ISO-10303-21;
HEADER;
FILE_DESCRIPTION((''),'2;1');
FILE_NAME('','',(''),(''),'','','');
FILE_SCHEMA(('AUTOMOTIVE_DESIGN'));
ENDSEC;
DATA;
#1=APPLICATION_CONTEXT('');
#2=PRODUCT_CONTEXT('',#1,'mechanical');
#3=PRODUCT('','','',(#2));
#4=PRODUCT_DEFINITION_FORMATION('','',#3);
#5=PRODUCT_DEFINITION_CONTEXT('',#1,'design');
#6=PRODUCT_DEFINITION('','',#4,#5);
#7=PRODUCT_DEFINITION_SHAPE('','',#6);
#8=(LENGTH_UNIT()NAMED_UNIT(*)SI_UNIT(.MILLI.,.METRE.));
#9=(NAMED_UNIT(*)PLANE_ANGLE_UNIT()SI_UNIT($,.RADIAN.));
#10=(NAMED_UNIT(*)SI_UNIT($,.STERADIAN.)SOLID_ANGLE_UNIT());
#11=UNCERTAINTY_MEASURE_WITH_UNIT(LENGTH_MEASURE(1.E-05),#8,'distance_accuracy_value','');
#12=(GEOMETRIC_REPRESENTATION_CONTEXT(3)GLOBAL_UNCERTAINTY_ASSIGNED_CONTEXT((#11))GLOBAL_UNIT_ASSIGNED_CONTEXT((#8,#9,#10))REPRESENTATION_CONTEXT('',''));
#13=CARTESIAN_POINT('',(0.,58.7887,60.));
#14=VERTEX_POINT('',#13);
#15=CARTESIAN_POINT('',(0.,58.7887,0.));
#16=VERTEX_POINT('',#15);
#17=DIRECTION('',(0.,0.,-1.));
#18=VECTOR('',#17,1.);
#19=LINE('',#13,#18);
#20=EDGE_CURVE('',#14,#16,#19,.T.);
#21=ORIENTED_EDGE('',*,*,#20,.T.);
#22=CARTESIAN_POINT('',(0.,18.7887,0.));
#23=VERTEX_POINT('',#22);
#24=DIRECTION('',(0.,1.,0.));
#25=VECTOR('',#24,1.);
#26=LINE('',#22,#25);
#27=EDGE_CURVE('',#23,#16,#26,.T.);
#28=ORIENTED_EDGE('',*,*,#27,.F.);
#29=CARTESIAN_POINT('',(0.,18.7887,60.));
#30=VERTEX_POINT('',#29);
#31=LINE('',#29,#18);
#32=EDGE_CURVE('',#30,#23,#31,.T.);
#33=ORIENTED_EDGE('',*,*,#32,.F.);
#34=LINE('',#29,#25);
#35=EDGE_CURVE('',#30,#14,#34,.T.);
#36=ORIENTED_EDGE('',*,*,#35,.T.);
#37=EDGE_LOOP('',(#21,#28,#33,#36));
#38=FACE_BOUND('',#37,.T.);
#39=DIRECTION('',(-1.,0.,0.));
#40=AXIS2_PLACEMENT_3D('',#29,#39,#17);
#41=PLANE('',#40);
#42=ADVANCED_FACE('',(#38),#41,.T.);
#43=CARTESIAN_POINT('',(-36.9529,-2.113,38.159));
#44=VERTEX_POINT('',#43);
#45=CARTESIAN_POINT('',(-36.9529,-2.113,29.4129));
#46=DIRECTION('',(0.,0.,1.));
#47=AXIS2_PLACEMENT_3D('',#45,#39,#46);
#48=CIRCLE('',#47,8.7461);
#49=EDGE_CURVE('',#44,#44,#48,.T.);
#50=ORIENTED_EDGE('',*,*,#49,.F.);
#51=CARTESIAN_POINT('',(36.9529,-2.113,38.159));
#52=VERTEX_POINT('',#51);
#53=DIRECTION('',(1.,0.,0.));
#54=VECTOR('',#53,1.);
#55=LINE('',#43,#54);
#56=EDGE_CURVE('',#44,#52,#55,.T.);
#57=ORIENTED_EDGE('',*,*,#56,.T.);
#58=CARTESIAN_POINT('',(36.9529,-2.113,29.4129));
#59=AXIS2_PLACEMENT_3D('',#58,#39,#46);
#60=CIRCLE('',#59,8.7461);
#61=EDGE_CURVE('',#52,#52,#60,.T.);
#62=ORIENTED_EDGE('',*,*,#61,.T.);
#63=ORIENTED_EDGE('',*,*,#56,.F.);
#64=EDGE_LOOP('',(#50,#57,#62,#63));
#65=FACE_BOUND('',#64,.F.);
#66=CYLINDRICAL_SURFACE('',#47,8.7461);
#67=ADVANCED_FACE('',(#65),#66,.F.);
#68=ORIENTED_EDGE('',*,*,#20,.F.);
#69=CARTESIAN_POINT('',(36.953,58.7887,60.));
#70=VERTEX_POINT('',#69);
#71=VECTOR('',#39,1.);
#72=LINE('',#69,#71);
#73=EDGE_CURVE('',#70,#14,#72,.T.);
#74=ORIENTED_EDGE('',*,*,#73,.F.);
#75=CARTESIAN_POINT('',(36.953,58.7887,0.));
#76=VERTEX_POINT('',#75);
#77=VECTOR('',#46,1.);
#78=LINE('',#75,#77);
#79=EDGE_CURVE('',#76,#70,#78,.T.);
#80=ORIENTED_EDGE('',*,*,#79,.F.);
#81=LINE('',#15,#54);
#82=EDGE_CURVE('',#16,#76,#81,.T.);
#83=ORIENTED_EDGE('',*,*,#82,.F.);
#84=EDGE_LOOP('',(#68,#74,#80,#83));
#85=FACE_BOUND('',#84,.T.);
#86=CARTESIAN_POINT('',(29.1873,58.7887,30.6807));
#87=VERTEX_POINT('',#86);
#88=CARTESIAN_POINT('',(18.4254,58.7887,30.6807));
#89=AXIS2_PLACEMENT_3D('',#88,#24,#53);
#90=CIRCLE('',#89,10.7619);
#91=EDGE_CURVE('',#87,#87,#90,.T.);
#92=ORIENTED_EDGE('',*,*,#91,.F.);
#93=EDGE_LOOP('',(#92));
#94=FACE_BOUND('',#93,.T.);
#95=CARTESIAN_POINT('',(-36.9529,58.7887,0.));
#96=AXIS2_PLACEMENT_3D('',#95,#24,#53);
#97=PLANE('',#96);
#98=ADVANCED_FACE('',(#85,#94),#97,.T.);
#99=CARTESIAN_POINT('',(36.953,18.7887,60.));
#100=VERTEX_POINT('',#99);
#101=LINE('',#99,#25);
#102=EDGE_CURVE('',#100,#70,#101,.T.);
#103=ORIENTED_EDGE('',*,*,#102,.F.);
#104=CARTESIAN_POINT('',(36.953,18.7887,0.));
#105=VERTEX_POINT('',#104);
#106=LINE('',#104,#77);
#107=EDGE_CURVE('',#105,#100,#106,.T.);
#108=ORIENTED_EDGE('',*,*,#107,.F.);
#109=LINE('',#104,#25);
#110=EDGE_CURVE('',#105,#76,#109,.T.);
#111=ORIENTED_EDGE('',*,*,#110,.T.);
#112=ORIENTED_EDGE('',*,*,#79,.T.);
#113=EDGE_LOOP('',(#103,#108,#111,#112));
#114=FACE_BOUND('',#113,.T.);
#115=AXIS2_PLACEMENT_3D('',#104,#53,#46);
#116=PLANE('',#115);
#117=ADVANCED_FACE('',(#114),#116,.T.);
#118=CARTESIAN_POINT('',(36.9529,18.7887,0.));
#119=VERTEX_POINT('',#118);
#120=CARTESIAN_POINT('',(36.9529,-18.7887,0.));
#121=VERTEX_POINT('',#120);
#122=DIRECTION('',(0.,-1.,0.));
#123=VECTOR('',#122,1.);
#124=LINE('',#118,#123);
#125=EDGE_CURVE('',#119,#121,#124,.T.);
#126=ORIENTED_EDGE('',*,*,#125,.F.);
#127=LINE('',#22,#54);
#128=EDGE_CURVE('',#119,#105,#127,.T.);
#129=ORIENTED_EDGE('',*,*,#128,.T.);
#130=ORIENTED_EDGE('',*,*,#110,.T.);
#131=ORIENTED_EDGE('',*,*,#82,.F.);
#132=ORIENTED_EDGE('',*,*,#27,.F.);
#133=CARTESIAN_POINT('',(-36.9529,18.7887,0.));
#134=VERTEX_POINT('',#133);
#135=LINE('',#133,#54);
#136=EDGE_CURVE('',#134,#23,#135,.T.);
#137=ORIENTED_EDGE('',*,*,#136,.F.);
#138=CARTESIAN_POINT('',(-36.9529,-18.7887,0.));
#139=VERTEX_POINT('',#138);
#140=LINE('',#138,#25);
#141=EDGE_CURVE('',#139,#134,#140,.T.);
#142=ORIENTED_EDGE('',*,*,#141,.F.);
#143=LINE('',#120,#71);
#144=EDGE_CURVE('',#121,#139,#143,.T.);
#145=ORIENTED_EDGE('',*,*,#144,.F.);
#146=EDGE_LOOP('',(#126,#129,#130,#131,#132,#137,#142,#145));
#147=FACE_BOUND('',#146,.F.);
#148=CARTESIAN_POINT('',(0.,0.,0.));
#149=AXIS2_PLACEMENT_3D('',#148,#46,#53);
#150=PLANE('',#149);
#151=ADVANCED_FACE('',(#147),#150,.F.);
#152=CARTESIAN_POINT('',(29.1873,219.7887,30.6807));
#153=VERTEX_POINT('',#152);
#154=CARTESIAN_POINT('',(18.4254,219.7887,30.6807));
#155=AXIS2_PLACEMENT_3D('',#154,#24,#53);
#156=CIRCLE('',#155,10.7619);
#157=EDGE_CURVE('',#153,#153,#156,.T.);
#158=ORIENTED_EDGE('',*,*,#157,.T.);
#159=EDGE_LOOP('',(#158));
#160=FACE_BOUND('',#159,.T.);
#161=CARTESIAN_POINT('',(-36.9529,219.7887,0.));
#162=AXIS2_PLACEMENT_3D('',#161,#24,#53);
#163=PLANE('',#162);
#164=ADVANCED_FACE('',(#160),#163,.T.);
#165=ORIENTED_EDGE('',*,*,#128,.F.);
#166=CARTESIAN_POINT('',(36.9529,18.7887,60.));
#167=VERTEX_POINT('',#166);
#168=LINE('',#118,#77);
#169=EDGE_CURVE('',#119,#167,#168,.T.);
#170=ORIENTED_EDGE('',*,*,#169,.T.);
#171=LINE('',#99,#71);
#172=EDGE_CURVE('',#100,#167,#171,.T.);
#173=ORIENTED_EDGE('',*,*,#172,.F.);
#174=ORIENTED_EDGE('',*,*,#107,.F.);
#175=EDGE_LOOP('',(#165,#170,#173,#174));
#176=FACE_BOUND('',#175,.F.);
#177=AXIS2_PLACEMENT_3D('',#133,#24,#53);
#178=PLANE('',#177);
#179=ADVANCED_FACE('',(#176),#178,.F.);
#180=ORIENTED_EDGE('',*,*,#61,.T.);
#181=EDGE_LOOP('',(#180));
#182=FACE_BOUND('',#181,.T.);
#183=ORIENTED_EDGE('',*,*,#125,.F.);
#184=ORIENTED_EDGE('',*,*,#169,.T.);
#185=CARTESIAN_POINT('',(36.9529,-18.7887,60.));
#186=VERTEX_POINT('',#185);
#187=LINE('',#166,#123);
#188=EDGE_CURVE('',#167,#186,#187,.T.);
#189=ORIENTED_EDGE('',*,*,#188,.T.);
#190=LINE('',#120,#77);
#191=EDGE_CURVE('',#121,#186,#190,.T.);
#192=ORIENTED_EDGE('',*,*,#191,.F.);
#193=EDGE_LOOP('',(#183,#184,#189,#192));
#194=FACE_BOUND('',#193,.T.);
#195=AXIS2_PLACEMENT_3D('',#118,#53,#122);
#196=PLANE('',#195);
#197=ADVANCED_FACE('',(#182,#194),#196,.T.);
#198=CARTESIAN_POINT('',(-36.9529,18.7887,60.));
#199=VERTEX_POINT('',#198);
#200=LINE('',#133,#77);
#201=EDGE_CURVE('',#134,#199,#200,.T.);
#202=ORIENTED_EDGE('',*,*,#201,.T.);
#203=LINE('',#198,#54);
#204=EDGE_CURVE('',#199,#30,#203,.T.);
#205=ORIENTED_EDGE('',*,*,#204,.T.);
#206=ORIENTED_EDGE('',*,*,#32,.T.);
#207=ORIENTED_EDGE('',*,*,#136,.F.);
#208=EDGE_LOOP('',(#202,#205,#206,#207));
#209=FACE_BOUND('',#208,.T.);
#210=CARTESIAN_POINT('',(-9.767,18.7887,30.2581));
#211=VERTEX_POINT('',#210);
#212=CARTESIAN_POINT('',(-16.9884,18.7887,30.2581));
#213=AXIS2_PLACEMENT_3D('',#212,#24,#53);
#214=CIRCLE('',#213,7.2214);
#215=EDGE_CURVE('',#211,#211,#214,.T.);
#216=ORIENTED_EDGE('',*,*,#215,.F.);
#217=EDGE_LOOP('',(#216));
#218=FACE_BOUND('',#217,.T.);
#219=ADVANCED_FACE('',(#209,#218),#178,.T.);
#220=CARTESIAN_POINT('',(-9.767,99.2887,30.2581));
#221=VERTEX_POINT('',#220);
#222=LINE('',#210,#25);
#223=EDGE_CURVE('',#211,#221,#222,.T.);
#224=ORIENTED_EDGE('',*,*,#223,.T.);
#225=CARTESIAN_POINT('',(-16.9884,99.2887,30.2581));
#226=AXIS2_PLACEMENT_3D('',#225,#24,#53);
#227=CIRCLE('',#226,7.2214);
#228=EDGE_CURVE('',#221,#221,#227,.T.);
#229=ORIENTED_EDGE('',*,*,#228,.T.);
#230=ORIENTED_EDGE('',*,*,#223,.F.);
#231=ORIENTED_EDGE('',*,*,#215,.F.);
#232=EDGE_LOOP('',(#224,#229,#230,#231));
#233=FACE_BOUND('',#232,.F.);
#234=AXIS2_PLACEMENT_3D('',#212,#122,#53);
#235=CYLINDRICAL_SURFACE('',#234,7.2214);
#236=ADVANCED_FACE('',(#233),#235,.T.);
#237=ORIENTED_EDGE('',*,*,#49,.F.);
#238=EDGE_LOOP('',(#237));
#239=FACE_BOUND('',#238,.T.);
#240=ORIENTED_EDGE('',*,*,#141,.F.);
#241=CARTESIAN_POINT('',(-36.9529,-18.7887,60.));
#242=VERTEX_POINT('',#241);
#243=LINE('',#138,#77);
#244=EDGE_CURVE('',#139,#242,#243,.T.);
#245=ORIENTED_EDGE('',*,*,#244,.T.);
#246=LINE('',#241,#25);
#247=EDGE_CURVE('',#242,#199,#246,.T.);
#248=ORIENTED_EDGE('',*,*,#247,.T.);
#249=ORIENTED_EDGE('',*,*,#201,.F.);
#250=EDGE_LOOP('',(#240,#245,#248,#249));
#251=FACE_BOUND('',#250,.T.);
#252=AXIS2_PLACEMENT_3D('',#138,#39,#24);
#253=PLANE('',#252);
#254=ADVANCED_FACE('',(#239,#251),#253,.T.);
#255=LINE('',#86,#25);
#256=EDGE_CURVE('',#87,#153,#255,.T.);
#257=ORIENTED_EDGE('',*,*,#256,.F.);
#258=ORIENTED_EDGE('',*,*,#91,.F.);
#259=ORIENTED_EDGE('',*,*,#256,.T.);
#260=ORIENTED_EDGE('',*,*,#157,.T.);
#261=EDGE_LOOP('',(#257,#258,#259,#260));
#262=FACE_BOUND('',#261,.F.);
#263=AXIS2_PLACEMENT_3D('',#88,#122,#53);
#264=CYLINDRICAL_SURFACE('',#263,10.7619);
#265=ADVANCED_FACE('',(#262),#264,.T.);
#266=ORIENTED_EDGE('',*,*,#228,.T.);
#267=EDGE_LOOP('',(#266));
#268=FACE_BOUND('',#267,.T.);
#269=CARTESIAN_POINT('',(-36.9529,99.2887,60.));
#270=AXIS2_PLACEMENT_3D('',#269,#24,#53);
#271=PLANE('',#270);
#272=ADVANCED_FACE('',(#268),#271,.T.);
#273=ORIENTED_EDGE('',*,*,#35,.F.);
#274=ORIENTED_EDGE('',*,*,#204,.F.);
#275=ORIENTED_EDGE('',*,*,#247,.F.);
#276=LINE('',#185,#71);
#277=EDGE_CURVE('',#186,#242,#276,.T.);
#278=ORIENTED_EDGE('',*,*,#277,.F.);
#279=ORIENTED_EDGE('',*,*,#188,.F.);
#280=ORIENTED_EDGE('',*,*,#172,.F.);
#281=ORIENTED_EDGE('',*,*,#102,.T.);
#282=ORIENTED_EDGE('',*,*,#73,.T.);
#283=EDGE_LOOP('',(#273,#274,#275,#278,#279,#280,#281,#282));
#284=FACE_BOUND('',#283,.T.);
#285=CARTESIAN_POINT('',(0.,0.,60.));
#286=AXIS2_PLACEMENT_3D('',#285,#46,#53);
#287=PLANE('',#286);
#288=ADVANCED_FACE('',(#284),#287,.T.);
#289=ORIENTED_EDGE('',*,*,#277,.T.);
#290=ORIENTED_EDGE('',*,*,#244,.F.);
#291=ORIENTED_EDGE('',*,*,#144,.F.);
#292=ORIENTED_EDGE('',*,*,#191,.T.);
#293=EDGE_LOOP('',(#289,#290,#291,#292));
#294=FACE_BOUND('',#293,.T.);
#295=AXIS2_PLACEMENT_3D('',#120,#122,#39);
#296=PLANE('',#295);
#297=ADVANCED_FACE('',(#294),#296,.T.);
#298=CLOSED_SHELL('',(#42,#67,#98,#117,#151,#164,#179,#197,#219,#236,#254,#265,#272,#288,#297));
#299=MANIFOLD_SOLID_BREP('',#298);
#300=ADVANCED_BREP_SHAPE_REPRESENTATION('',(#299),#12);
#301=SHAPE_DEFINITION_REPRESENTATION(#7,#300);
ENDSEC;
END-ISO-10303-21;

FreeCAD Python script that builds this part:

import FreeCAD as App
import Part
import Sketcher

doc = App.newDocument("Part")
body = doc.addObject("PartDesign::Body", "Body")

sketch1 = doc.addObject("Sketcher::SketchObject", "Sketch")
body.addObject(sketch1)
sketch1.AttachmentSupport = (doc.XY_Plane, [""])
sketch1.MapMode = "FlatFace"
sketch1.addGeometry([
    Part.LineSegment(App.Vector(-37, -19, 0), App.Vector(37, -19, 0)),
    Part.LineSegment(App.Vector(37, -19, 0), App.Vector(37, 19, 0)),
    Part.LineSegment(App.Vector(37, 19, 0), App.Vector(-37, 19, 0)),
    Part.LineSegment(App.Vector(-37, 19, 0), App.Vector(-37, -19, 0)),
], False)
sketch1.addConstraint([
    Sketcher.Constraint("Coincident", 0, 2, 1, 1),
    Sketcher.Constraint("Coincident", 1, 2, 2, 1),
    Sketcher.Constraint("Coincident", 2, 2, 3, 1),
    Sketcher.Constraint("Coincident", 3, 2, 0, 1),
    Sketcher.Constraint("Horizontal", 0),
    Sketcher.Constraint("Vertical", 1),
    Sketcher.Constraint("Horizontal", 2),
    Sketcher.Constraint("Vertical", 3),
    Sketcher.Constraint("Symmetric", 0, 2, 2, 2, -1, 1),
    Sketcher.Constraint("DistanceX", 0, 1, 0, 2, 73.9058),
    Sketcher.Constraint("DistanceY", 1, 1, 1, 2, 37.5774),
])
pad1 = doc.addObject("PartDesign::Pad", "Pad")
body.addObject(pad1)
pad1.Profile = sketch1
pad1.Length = 60

sketch2 = doc.addObject("Sketcher::SketchObject", "Sketch001")
body.addObject(sketch2)
sketch2.AttachmentSupport = (doc.XZ_Plane, [""])
sketch2.MapMode = "FlatFace"
sketch2.AttachmentOffset = App.Placement(App.Vector(0, 0, -18.7887), App.Rotation())
sketch2.addGeometry([
    Part.LineSegment(App.Vector(37, 60, 0), App.Vector(37, 0, 0)),
    Part.LineSegment(App.Vector(37, 0, 0), App.Vector(0, 0, 0)),
    Part.LineSegment(App.Vector(0, 0, 0), App.Vector(0, 60, 0)),
    Part.LineSegment(App.Vector(0, 60, 0), App.Vector(37, 60, 0)),
], False)
sketch2.addConstraint([
    Sketcher.Constraint("Coincident", 0, 2, 1, 1),
    Sketcher.Constraint("Coincident", 1, 2, 2, 1),
    Sketcher.Constraint("Coincident", 2, 2, 3, 1),
    Sketcher.Constraint("Coincident", 3, 2, 0, 1),
    Sketcher.Constraint("Vertical", 0),
    Sketcher.Constraint("Horizontal", 1),
    Sketcher.Constraint("Vertical", 2),
    Sketcher.Constraint("Horizontal", 3),
    Sketcher.Constraint("Coincident", 1, 2, -1, 1),
    Sketcher.Constraint("DistanceY", 0, 2, 0, 1, 60.0),
    Sketcher.Constraint("DistanceX", 1, 2, 1, 1, 36.953),
])
pad2 = doc.addObject("PartDesign::Pad", "Pad001")
body.addObject(pad2)
pad2.Profile = sketch2
pad2.Length = 40
pad2.Reversed = True

sketch3 = doc.addObject("Sketcher::SketchObject", "Sketch002")
body.addObject(sketch3)
sketch3.AttachmentSupport = (doc.XZ_Plane, [""])
sketch3.MapMode = "FlatFace"
sketch3.AttachmentOffset = App.Placement(App.Vector(0, 0, -18.7887), App.Rotation())
sketch3.addGeometry(Part.Circle(App.Vector(-17, 30, 0), App.Vector(0, 0, 1), 7), False)
sketch3.addConstraint([
    Sketcher.Constraint("Diameter", 0, 14.4428),
    Sketcher.Constraint("DistanceY", -1, 1, 0, 3, 30.258),
    Sketcher.Constraint("DistanceX", 0, 3, -1, 1, 16.9884),
])
pad3 = doc.addObject("PartDesign::Pad", "Pad002")
body.addObject(pad3)
pad3.Profile = sketch3
pad3.Length = 80.5
pad3.Reversed = True

sketch4 = doc.addObject("Sketcher::SketchObject", "Sketch003")
body.addObject(sketch4)
sketch4.AttachmentSupport = (doc.XZ_Plane, [""])
sketch4.MapMode = "FlatFace"
sketch4.AttachmentOffset = App.Placement(App.Vector(0, 0, -58.7887), App.Rotation())
sketch4.addGeometry(Part.Circle(App.Vector(18, 31, 0), App.Vector(0, 0, 1), 11), False)
sketch4.addConstraint([
    Sketcher.Constraint("Diameter", 0, 21.5238),
    Sketcher.Constraint("DistanceX", -1, 1, 0, 3, 18.4254),
    Sketcher.Constraint("DistanceY", -1, 1, 0, 3, 30.6807),
])
pad4 = doc.addObject("PartDesign::Pad", "Pad003")
body.addObject(pad4)
pad4.Profile = sketch4
pad4.Length = 161
pad4.Reversed = True

sketch5 = doc.addObject("Sketcher::SketchObject", "Sketch004")
body.addObject(sketch5)
sketch5.AttachmentSupport = (doc.YZ_Plane, [""])
sketch5.MapMode = "FlatFace"
sketch5.AttachmentOffset = App.Placement(App.Vector(0, 0, -36.9529), App.Rotation())
sketch5.addGeometry(Part.Circle(App.Vector(-2, 29, 0), App.Vector(0, 0, 1), 9), False)
sketch5.addConstraint([
    Sketcher.Constraint("Diameter", 0, 17.4922),
    Sketcher.Constraint("DistanceX", 0, 3, -1, 1, 2.113),
    Sketcher.Constraint("DistanceY", -1, 1, 0, 3, 29.413),
])
pocket1 = doc.addObject("PartDesign::Pocket", "Pocket")
body.addObject(pocket1)
pocket1.Profile = sketch5
pocket1.Length = 80.5
pocket1.Reversed = True

doc.recompute()
